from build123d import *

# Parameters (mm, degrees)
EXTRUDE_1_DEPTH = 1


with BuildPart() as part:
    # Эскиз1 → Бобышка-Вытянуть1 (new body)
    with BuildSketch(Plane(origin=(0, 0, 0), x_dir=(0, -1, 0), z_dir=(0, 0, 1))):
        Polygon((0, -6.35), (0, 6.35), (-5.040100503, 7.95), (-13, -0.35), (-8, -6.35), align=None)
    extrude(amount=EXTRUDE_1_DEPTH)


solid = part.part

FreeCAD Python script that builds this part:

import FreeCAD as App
import Part
import Sketcher

doc = App.newDocument("Part")
body = doc.addObject("PartDesign::Body", "Body")

sketch1 = body.newObject("Sketcher::SketchObject", "Sketch")
sketch1.AttachmentSupport = (doc.getObject("XY_Plane"), [""])
sketch1.MapMode = "FlatFace"
sketch1.addGeometry([
    Part.LineSegment(App.Vector(-6.35, 0, 0), App.Vector(6.35, 0, 0)),
    Part.LineSegment(App.Vector(6.35, 0, 0), App.Vector(7.95, 5.040101, 0)),
    Part.LineSegment(App.Vector(7.95, 5.040101, 0), App.Vector(-0.35, 13, 0)),
    Part.LineSegment(App.Vector(-0.35, 13, 0), App.Vector(-6.35, 8, 0)),
    Part.LineSegment(App.Vector(-6.35, 8, 0), App.Vector(-6.35, 0, 0)),
], False)
sketch1.addConstraint([
    Sketcher.Constraint("Coincident", 0, 2, 1, 1),
    Sketcher.Constraint("Coincident", 1, 2, 2, 1),
    Sketcher.Constraint("Coincident", 2, 2, 3, 1),
    Sketcher.Constraint("Coincident", 3, 2, 4, 1),
    Sketcher.Constraint("Coincident", 4, 2, 0, 1),
    Sketcher.Constraint("Horizontal", 0),
    Sketcher.Constraint("Vertical", 4),
    Sketcher.Constraint("Symmetric", 0, 2, 4, 2, -1, 1),
    Sketcher.Constraint("DistanceY", 4, 2, 4, 1, 8.0),
    Sketcher.Constraint("DistanceX", 0, 1, 0, 2, 12.7),
    Sketcher.Constraint("DistanceY", -1, 1, 2, 2, 13.0),
    Sketcher.Constraint("DistanceX", 3, 2, 2, 2, 6.0),
    Sketcher.Constraint("Distance", 2, 11.5),
    Sketcher.Constraint("DistanceX", 0, 2, 1, 2, 1.6),
])
pad1 = body.newObject("PartDesign::Pad", "Pad")
pad1.Profile = sketch1
pad1.Length = 1

doc.recompute()
